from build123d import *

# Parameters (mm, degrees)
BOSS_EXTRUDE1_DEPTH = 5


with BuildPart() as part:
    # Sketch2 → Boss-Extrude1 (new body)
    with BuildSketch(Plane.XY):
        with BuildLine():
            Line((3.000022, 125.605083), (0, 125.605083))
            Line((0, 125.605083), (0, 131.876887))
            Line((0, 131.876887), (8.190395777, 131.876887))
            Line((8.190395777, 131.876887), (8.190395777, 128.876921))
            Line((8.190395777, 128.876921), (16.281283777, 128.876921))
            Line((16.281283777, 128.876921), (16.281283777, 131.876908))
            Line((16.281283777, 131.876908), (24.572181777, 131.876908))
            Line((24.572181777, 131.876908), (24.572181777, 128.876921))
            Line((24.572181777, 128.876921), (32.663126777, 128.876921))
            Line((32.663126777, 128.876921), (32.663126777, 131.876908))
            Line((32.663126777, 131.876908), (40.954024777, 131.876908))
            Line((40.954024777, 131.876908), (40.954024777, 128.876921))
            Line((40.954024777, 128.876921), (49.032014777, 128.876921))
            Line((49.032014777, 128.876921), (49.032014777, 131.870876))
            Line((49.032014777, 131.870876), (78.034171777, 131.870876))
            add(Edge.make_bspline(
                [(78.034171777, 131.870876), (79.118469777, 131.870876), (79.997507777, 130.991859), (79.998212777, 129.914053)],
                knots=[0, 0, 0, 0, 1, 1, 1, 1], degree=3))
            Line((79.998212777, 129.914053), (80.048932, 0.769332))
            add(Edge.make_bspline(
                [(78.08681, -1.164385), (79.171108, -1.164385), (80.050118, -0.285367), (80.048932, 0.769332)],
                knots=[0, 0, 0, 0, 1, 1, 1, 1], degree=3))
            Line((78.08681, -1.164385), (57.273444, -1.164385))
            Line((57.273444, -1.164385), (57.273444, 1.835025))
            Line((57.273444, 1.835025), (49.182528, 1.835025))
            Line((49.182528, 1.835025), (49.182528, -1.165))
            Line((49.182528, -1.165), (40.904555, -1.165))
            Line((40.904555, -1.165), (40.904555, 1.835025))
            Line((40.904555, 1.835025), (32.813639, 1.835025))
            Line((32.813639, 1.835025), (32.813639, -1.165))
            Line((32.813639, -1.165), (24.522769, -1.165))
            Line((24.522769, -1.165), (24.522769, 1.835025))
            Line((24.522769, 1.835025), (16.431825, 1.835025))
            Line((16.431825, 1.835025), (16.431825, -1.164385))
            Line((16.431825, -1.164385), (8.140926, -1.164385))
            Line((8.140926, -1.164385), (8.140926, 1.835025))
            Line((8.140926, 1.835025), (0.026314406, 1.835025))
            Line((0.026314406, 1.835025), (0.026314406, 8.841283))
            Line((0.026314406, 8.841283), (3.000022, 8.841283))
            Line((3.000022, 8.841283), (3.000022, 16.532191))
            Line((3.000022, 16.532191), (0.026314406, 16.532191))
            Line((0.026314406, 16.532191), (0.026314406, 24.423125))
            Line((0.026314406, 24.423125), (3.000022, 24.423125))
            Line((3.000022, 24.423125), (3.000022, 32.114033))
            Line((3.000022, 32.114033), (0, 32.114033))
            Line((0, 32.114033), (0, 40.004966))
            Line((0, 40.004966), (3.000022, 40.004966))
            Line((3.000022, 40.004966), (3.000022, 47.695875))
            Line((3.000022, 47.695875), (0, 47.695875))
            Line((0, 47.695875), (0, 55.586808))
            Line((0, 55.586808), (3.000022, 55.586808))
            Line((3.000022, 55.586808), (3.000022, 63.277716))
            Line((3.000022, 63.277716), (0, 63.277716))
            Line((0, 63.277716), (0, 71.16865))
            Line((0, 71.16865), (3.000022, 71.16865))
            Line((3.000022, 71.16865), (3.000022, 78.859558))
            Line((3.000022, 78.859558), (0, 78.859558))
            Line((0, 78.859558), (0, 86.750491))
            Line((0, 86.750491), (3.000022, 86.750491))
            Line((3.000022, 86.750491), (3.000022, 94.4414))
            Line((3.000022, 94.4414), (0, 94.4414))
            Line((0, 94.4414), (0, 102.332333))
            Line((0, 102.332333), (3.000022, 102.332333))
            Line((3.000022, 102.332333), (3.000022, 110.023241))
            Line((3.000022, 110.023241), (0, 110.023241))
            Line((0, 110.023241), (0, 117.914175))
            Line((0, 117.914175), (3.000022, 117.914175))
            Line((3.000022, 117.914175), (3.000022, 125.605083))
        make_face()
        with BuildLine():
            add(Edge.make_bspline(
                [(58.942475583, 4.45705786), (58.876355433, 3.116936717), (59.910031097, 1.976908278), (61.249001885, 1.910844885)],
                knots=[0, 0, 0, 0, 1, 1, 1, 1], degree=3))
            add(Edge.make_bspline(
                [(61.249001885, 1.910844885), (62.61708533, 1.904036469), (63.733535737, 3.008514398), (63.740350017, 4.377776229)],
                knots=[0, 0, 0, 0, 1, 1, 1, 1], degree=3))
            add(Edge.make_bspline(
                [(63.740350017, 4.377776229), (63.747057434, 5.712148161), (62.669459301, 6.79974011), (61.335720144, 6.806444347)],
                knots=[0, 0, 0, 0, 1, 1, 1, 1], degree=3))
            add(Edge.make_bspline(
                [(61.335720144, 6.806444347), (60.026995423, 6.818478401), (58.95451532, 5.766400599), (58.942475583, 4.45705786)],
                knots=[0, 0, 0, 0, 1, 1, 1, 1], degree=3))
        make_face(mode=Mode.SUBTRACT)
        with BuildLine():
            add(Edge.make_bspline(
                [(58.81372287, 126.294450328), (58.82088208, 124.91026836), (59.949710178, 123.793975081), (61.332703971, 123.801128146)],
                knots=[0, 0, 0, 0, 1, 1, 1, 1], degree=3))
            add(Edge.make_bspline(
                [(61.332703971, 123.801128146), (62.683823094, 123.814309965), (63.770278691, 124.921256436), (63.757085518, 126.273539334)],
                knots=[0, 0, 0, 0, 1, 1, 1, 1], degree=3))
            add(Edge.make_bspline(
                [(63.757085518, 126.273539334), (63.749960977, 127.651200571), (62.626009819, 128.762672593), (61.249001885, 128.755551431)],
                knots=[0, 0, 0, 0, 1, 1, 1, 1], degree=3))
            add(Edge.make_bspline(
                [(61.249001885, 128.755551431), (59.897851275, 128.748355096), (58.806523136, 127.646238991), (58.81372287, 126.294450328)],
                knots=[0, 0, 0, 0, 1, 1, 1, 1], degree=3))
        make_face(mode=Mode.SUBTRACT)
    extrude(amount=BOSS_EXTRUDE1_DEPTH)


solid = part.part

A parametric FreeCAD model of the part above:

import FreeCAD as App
import Part
import Sketcher
Q = App.Units.Quantity

doc = App.newDocument("Part")
body = doc.addObject("PartDesign::Body", "Body")

sketch1 = doc.addObject("Sketcher::SketchObject", "Sketch")
body.addObject(sketch1)
sketch1.AttachmentSupport = (doc.XY_Plane, [""])
sketch1.MapMode = "FlatFace"
sketch1.addGeometry([
    Part.LineSegment(App.Vector(0, 125.605083, 0), App.Vector(3.000022, 125.605083, 0)),
    Part.LineSegment(App.Vector(3.000022, 125.605083, 0), App.Vector(3.000022, 117.914175, 0)),
    Part.LineSegment(App.Vector(3.000022, 117.914175, 0), App.Vector(0, 117.914175, 0)),
    Part.LineSegment(App.Vector(0, 117.914175, 0), App.Vector(0, 110.023241, 0)),
    Part.LineSegment(App.Vector(0, 110.023241, 0), App.Vector(3.000022, 110.023241, 0)),
    Part.LineSegment(App.Vector(3.000022, 110.023241, 0), App.Vector(3.000022, 102.332333, 0)),
    Part.LineSegment(App.Vector(3.000022, 102.332333, 0), App.Vector(0, 102.332333, 0)),
    Part.LineSegment(App.Vector(0, 102.332333, 0), App.Vector(0, 94.4414, 0)),
    Part.LineSegment(App.Vector(0, 94.4414, 0), App.Vector(3.000022, 94.4414, 0)),
    Part.LineSegment(App.Vector(3.000022, 94.4414, 0), App.Vector(3.000022, 86.750491, 0)),
    Part.LineSegment(App.Vector(3.000022, 86.750491, 0), App.Vector(0, 86.750491, 0)),
    Part.LineSegment(App.Vector(0, 86.750491, 0), App.Vector(0, 78.859558, 0)),
    Part.LineSegment(App.Vector(0, 78.859558, 0), App.Vector(3.000022, 78.859558, 0)),
    Part.LineSegment(App.Vector(3.000022, 78.859558, 0), App.Vector(3.000022, 71.16865, 0)),
    Part.LineSegment(App.Vector(3.000022, 71.16865, 0), App.Vector(0, 71.16865, 0)),
    Part.LineSegment(App.Vector(0, 71.16865, 0), App.Vector(0, 63.277716, 0)),
    Part.LineSegment(App.Vector(0, 63.277716, 0), App.Vector(3.000022, 63.277716, 0)),
    Part.LineSegment(App.Vector(3.000022, 63.277716, 0), App.Vector(3.000022, 55.586808, 0)),
    Part.LineSegment(App.Vector(3.000022, 55.586808, 0), App.Vector(0, 55.586808, 0)),
    Part.LineSegment(App.Vector(0, 55.586808, 0), App.Vector(0, 47.695875, 0)),
    Part.LineSegment(App.Vector(0, 47.695875, 0), App.Vector(3.000022, 47.695875, 0)),
    Part.LineSegment(App.Vector(3.000022, 47.695875, 0), App.Vector(3.000022, 40.004966, 0)),
    Part.LineSegment(App.Vector(3.000022, 40.004966, 0), App.Vector(0, 40.004966, 0)),
    Part.LineSegment(App.Vector(0, 40.004966, 0), App.Vector(0, 32.114033, 0)),
    Part.LineSegment(App.Vector(0, 32.114033, 0), App.Vector(3.000022, 32.114033, 0)),
    Part.LineSegment(App.Vector(3.000022, 32.114033, 0), App.Vector(3.000022, 24.423125, 0)),
    Part.LineSegment(App.Vector(3.000022, 24.423125, 0), App.Vector(0.026314, 24.423125, 0)),
    Part.LineSegment(App.Vector(0.026314, 24.423125, 0), App.Vector(0.026314, 16.532191, 0)),
    Part.LineSegment(App.Vector(0.026314, 16.532191, 0), App.Vector(3.000022, 16.532191, 0)),
    Part.LineSegment(App.Vector(3.000022, 16.532191, 0), App.Vector(3.000022, 8.841283, 0)),
    Part.LineSegment(App.Vector(3.000022, 8.841283, 0), App.Vector(0.026314, 8.841283, 0)),
    Part.LineSegment(App.Vector(0.026314, 8.841283, 0), App.Vector(0.026314, 1.835025, 0)),
    Part.LineSegment(App.Vector(0.026314, 1.835025, 0), App.Vector(8.140926, 1.835025, 0)),
    Part.LineSegment(App.Vector(8.140926, 1.835025, 0), App.Vector(8.140926, -1.164385, 0)),
    Part.LineSegment(App.Vector(8.140926, -1.164385, 0), App.Vector(16.431825, -1.164385, 0)),
    Part.LineSegment(App.Vector(16.431825, -1.164385, 0), App.Vector(16.431825, 1.835025, 0)),
    Part.LineSegment(App.Vector(16.431825, 1.835025, 0), App.Vector(24.522769, 1.835025, 0)),
    Part.LineSegment(App.Vector(24.522769, 1.835025, 0), App.Vector(24.522769, -1.165, 0)),
    Part.LineSegment(App.Vector(24.522769, -1.165, 0), App.Vector(32.813639, -1.165, 0)),
    Part.LineSegment(App.Vector(32.813639, -1.165, 0), App.Vector(32.813639, 1.835025, 0)),
    Part.LineSegment(App.Vector(32.813639, 1.835025, 0), App.Vector(40.904555, 1.835025, 0)),
    Part.LineSegment(App.Vector(40.904555, 1.835025, 0), App.Vector(40.904555, -1.165, 0)),
    Part.LineSegment(App.Vector(40.904555, -1.165, 0), App.Vector(49.182528, -1.165, 0)),
    Part.LineSegment(App.Vector(49.182528, -1.165, 0), App.Vector(49.182528, 1.835025, 0)),
    Part.LineSegment(App.Vector(49.182528, 1.835025, 0), App.Vector(57.273444, 1.835025, 0)),
    Part.LineSegment(App.Vector(57.273444, 1.835025, 0), App.Vector(57.273444, -1.164385, 0)),
    Part.LineSegment(App.Vector(57.273444, -1.164385, 0), App.Vector(78.08681, -1.164385, 0)),
    Part.BSplineCurve([App.Vector(78.08681, -1.164385, 0), App.Vector(79.171108, -1.164385, 0), App.Vector(80.050118, -0.285367, 0), App.Vector(80.048932, 0.769332, 0)], [4, 4], [0, 1], False, 3, [1, 1, 1, 1], False),
    Part.LineSegment(App.Vector(80.048932, 0.769332, 0), App.Vector(79.998213, 129.914053, 0)),
    Part.BSplineCurve([App.Vector(78.034172, 131.870876, 0), App.Vector(79.11847, 131.870876, 0), App.Vector(79.997508, 130.991859, 0), App.Vector(79.998213, 129.914053, 0)], [4, 4], [0, 1], False, 3, [1, 1, 1, 1], False),
    Part.LineSegment(App.Vector(78.034172, 131.870876, 0), App.Vector(49.032015, 131.870876, 0)),
    Part.LineSegment(App.Vector(49.032015, 131.870876, 0), App.Vector(49.032015, 128.876921, 0)),
    Part.LineSegment(App.Vector(49.032015, 128.876921, 0), App.Vector(40.954025, 128.876921, 0)),
    Part.LineSegment(App.Vector(40.954025, 128.876921, 0), App.Vector(40.954025, 131.876908, 0)),
    Part.LineSegment(App.Vector(40.954025, 131.876908, 0), App.Vector(32.663127, 131.876908, 0)),
    Part.LineSegment(App.Vector(32.663127, 131.876908, 0), App.Vector(32.663127, 128.876921, 0)),
    Part.LineSegment(App.Vector(32.663127, 128.876921, 0), App.Vector(24.572182, 128.876921, 0)),
    Part.LineSegment(App.Vector(24.572182, 128.876921, 0), App.Vector(24.572182, 131.876908, 0)),
    Part.LineSegment(App.Vector(24.572182, 131.876908, 0), App.Vector(16.281284, 131.876908, 0)),
    Part.LineSegment(App.Vector(16.281284, 131.876908, 0), App.Vector(16.281284, 128.876921, 0)),
    Part.LineSegment(App.Vector(16.281284, 128.876921, 0), App.Vector(8.190396, 128.876921, 0)),
    Part.LineSegment(App.Vector(8.190396, 128.876921, 0), App.Vector(8.190396, 131.876887, 0)),
    Part.LineSegment(App.Vector(8.190396, 131.876887, 0), App.Vector(0, 131.876887, 0)),
    Part.LineSegment(App.Vector(0, 131.876887, 0), App.Vector(0, 125.605083, 0)),
    Part.BSplineCurve([App.Vector(61.33572, 6.806444, 0), App.Vector(60.026995, 6.818478, 0), App.Vector(58.954515, 5.766401, 0), App.Vector(58.942476, 4.457058, 0)], [4, 4], [0, 1], False, 3, [1, 1, 1, 1], False),
    Part.BSplineCurve([App.Vector(63.74035, 4.377776, 0), App.Vector(63.747057, 5.712148, 0), App.Vector(62.669459, 6.79974, 0), App.Vector(61.33572, 6.806444, 0)], [4, 4], [0, 1], False, 3, [1, 1, 1, 1], False),
    Part.BSplineCurve([App.Vector(61.249002, 1.910845, 0), App.Vector(62.617085, 1.904036, 0), App.Vector(63.733536, 3.008514, 0), App.Vector(63.74035, 4.377776, 0)], [4, 4], [0, 1], False, 3, [1, 1, 1, 1], False),
    Part.BSplineCurve([App.Vector(58.942476, 4.457058, 0), App.Vector(58.876355, 3.116937, 0), App.Vector(59.910031, 1.976908, 0), App.Vector(61.249002, 1.910845, 0)], [4, 4], [0, 1], False, 3, [1, 1, 1, 1], False),
    Part.BSplineCurve([App.Vector(61.249002, 128.755551, 0), App.Vector(59.897851, 128.748355, 0), App.Vector(58.806523, 127.646239, 0), App.Vector(58.813723, 126.29445, 0)], [4, 4], [0, 1], False, 3, [1, 1, 1, 1], False),
    Part.BSplineCurve([App.Vector(63.757086, 126.273539, 0), App.Vector(63.749961, 127.651201, 0), App.Vector(62.62601, 128.762673, 0), App.Vector(61.249002, 128.755551, 0)], [4, 4], [0, 1], False, 3, [1, 1, 1, 1], False),
    Part.BSplineCurve([App.Vector(61.332704, 123.801128, 0), App.Vector(62.683823, 123.81431, 0), App.Vector(63.770279, 124.921256, 0), App.Vector(63.757086, 126.273539, 0)], [4, 4], [0, 1], False, 3, [1, 1, 1, 1], False),
    Part.BSplineCurve([App.Vector(58.813723, 126.29445, 0), App.Vector(58.820882, 124.910268, 0), App.Vector(59.94971, 123.793975, 0), App.Vector(61.332704, 123.801128, 0)], [4, 4], [0, 1], False, 3, [1, 1, 1, 1], False),
], False)
sketch1.addConstraint([
    Sketcher.Constraint("Block", 47),
    Sketcher.Constraint("Block", 49),
    Sketcher.Constraint("Block", 64),
    Sketcher.Constraint("Block", 65),
    Sketcher.Constraint("Block", 66),
    Sketcher.Constraint("Block", 67),
    Sketcher.Constraint("Block", 68),
    Sketcher.Constraint("Block", 69),
    Sketcher.Constraint("Block", 70),
    Sketcher.Constraint("Block", 71),
    Sketcher.Constraint("Coincident", 0, 2, 1, 1),
    Sketcher.Constraint("Coincident", 1, 2, 2, 1),
    Sketcher.Constraint("Coincident", 2, 2, 3, 1),
    Sketcher.Constraint("Coincident", 3, 2, 4, 1),
    Sketcher.Constraint("Coincident", 4, 2, 5, 1),
    Sketcher.Constraint("Coincident", 5, 2, 6, 1),
    Sketcher.Constraint("Coincident", 6, 2, 7, 1),
    Sketcher.Constraint("Coincident", 7, 2, 8, 1),
    Sketcher.Constraint("Coincident", 8, 2, 9, 1),
    Sketcher.Constraint("Coincident", 9, 2, 10, 1),
    Sketcher.Constraint("Coincident", 10, 2, 11, 1),
    Sketcher.Constraint("Coincident", 11, 2, 12, 1),
    Sketcher.Constraint("Coincident", 12, 2, 13, 1),
    Sketcher.Constraint("Coincident", 13, 2, 14, 1),
    Sketcher.Constraint("Coincident", 14, 2, 15, 1),
    Sketcher.Constraint("Coincident", 15, 2, 16, 1),
    Sketcher.Constraint("Coincident", 16, 2, 17, 1),
    Sketcher.Constraint("Coincident", 17, 2, 18, 1),
    Sketcher.Constraint("Coincident", 18, 2, 19, 1),
    Sketcher.Constraint("Coincident", 19, 2, 20, 1),
    Sketcher.Constraint("Coincident", 20, 2, 21, 1),
    Sketcher.Constraint("Coincident", 21, 2, 22, 1),
    Sketcher.Constraint("Coincident", 22, 2, 23, 1),
    Sketcher.Constraint("Coincident", 23, 2, 24, 1),
    Sketcher.Constraint("Coincident", 24, 2, 25, 1),
    Sketcher.Constraint("Coincident", 25, 2, 26, 1),
    Sketcher.Constraint("Coincident", 26, 2, 27, 1),
    Sketcher.Constraint("Coincident", 27, 2, 28, 1),
    Sketcher.Constraint("Coincident", 28, 2, 29, 1),
    Sketcher.Constraint("Coincident", 29, 2, 30, 1),
    Sketcher.Constraint("Coincident", 30, 2, 31, 1),
    Sketcher.Constraint("Coincident", 31, 2, 32, 1),
    Sketcher.Constraint("Coincident", 32, 2, 33, 1),
    Sketcher.Constraint("Coincident", 33, 2, 34, 1),
    Sketcher.Constraint("Coincident", 34, 2, 35, 1),
    Sketcher.Constraint("Coincident", 35, 2, 36, 1),
    Sketcher.Constraint("Coincident", 36, 2, 37, 1),
    Sketcher.Constraint("Coincident", 37, 2, 38, 1),
    Sketcher.Constraint("Coincident", 38, 2, 39, 1),
    Sketcher.Constraint("Coincident", 39, 2, 40, 1),
    Sketcher.Constraint("Coincident", 40, 2, 41, 1),
    Sketcher.Constraint("Coincident", 41, 2, 42, 1),
    Sketcher.Constraint("Coincident", 42, 2, 43, 1),
    Sketcher.Constraint("Coincident", 43, 2, 44, 1),
    Sketcher.Constraint("Coincident", 44, 2, 45, 1),
    Sketcher.Constraint("Coincident", 45, 2, 46, 1),
    Sketcher.Constraint("Coincident", 46, 2, 47, 1),
    Sketcher.Constraint("Coincident", 47, 2, 48, 1),
    Sketcher.Constraint("Coincident", 48, 2, 49, 2),
    Sketcher.Constraint("Coincident", 49, 1, 50, 1),
    Sketcher.Constraint("Coincident", 50, 2, 51, 1),
    Sketcher.Constraint("Coincident", 51, 2, 52, 1),
    Sketcher.Constraint("Coincident", 52, 2, 53, 1),
    Sketcher.Constraint("Coincident", 53, 2, 54, 1),
    Sketcher.Constraint("Coincident", 54, 2, 55, 1),
    Sketcher.Constraint("Coincident", 55, 2, 56, 1),
    Sketcher.Constraint("Coincident", 56, 2, 57, 1),
    Sketcher.Constraint("Coincident", 57, 2, 58, 1),
    Sketcher.Constraint("Coincident", 58, 2, 59, 1),
    Sketcher.Constraint("Coincident", 59, 2, 60, 1),
    Sketcher.Constraint("Coincident", 60, 2, 61, 1),
    Sketcher.Constraint("Coincident", 61, 2, 62, 1),
    Sketcher.Constraint("Coincident", 62, 2, 63, 1),
    Sketcher.Constraint("Coincident", 63, 2, 0, 1),
    Sketcher.Constraint("Horizontal", 0),
    Sketcher.Constraint("Vertical", 1),
    Sketcher.Constraint("Horizontal", 2),
    Sketcher.Constraint("Vertical", 3),
    Sketcher.Constraint("Horizontal", 4),
    Sketcher.Constraint("Vertical", 5),
    Sketcher.Constraint("Horizontal", 6),
    Sketcher.Constraint("Vertical", 7),
    Sketcher.Constraint("Horizontal", 8),
    Sketcher.Constraint("Vertical", 9),
    Sketcher.Constraint("Horizontal", 10),
    Sketcher.Constraint("Vertical", 11),
    Sketcher.Constraint("Horizontal", 12),
    Sketcher.Constraint("Vertical", 13),
    Sketcher.Constraint("Horizontal", 14),
    Sketcher.Constraint("Vertical", 15),
    Sketcher.Constraint("Horizontal", 16),
    Sketcher.Constraint("Vertical", 17),
    Sketcher.Constraint("Horizontal", 18),
    Sketcher.Constraint("Vertical", 19),
    Sketcher.Constraint("Horizontal", 20),
    Sketcher.Constraint("Vertical", 21),
    Sketcher.Constraint("Horizontal", 22),
    Sketcher.Constraint("Vertical", 23),
    Sketcher.Constraint("Horizontal", 24),
    Sketcher.Constraint("Vertical", 25),
    Sketcher.Constraint("Horizontal", 26),
    Sketcher.Constraint("Vertical", 27),
    Sketcher.Constraint("Horizontal", 28),
    Sketcher.Constraint("Vertical", 29),
    Sketcher.Constraint("Horizontal", 30),
    Sketcher.Constraint("Vertical", 31),
    Sketcher.Constraint("Horizontal", 32),
    Sketcher.Constraint("Vertical", 33),
    Sketcher.Constraint("Horizontal", 34),
    Sketcher.Constraint("Vertical", 35),
    Sketcher.Constraint("Horizontal", 36),
    Sketcher.Constraint("Vertical", 37),
    Sketcher.Constraint("Horizontal", 38),
    Sketcher.Constraint("Vertical", 39),
    Sketcher.Constraint("Horizontal", 40),
    Sketcher.Constraint("Vertical", 41),
    Sketcher.Constraint("Horizontal", 42),
    Sketcher.Constraint("Vertical", 43),
    Sketcher.Constraint("Horizontal", 44),
    Sketcher.Constraint("Vertical", 45),
    Sketcher.Constraint("Horizontal", 46),
    Sketcher.Constraint("Horizontal", 50),
    Sketcher.Constraint("Vertical", 51),
    Sketcher.Constraint("Horizontal", 52),
    Sketcher.Constraint("Vertical", 53),
    Sketcher.Constraint("Horizontal", 54),
    Sketcher.Constraint("Vertical", 55),
    Sketcher.Constraint("Horizontal", 56),
    Sketcher.Constraint("Vertical", 57),
    Sketcher.Constraint("Horizontal", 58),
    Sketcher.Constraint("Vertical", 59),
    Sketcher.Constraint("Horizontal", 60),
    Sketcher.Constraint("Vertical", 61),
    Sketcher.Constraint("Horizontal", 62),
    Sketcher.Constraint("Vertical", 63),
    Sketcher.Constraint("PointOnObject", 2, 2, -2),
    Sketcher.Constraint("PointOnObject", 6, 2, -2),
    Sketcher.Constraint("PointOnObject", 10, 2, -2),
    Sketcher.Constraint("PointOnObject", 14, 2, -2),
    Sketcher.Constraint("PointOnObject", 18, 2, -2),
    Sketcher.Constraint("PointOnObject", 22, 2, -2),
    Sketcher.Constraint("PointOnObject", 62, 2, -2),
    Sketcher.Constraint("Horizontal", 32, 2, 35, 2),
    Sketcher.Constraint("Horizontal", 36, 2, 39, 2),
    Sketcher.Constraint("Horizontal", 38, 2, 41, 2),
    Sketcher.Constraint("Horizontal", 40, 2, 43, 2),
    Sketcher.Constraint("Horizontal", 34, 2, 45, 2),
    Sketcher.Constraint("Horizontal", 52, 2, 55, 2),
    Sketcher.Constraint("Horizontal", 54, 2, 57, 2),
    Sketcher.Constraint("Horizontal", 56, 2, 59, 2),
    Sketcher.Constraint("Vertical", 1, 2, 4, 2),
    Sketcher.Constraint("Vertical", 5, 2, 8, 2),
    Sketcher.Constraint("Vertical", 9, 2, 12, 2),
    Sketcher.Constraint("Vertical", 13, 2, 16, 2),
    Sketcher.Constraint("Vertical", 17, 2, 20, 2),
    Sketcher.Constraint("Vertical", 21, 2, 24, 2),
    Sketcher.Constraint("Vertical", 25, 2, 28, 2),
    Sketcher.Constraint("Vertical", 27, 2, 30, 2),
    Sketcher.Constraint("Equal", 40, 44),
    Sketcher.Constraint("Equal", 34, 54),
    Sketcher.Constraint("Equal", 36, 56),
    Sketcher.Constraint("Equal", 54, 58),
    Sketcher.Constraint("Equal", 1, 5),
    Sketcher.Constraint("Equal", 3, 7),
    Sketcher.Constraint("Equal", 5, 9),
    Sketcher.Constraint("Equal", 7, 11),
    Sketcher.Constraint("Equal", 9, 13),
    Sketcher.Constraint("Equal", 11, 15),
    Sketcher.Constraint("Equal", 13, 17),
    Sketcher.Constraint("Equal", 15, 19),
    Sketcher.Constraint("Equal", 17, 21),
    Sketcher.Constraint("Equal", 19, 23),
    Sketcher.Constraint("Equal", 21, 25),
    Sketcher.Constraint("Equal", 23, 27),
    Sketcher.Constraint("Equal", 25, 29),
    Sketcher.Constraint("DistanceX", 34, 1, 34, 2, Q("8.290899 mm")),
    Sketcher.Constraint("DistanceY", 37, 2, -1, 1, Q("1.165 mm")),
    Sketcher.Constraint("DistanceX", 0, 1, 0, 2, Q("3.000022 mm")),
    Sketcher.Constraint("DistanceX", 32, 1, 32, 2, Q("8.114612 mm")),
    Sketcher.Constraint("DistanceX", 38, 1, 38, 2, Q("8.29087 mm")),
    Sketcher.Constraint("DistanceX", 52, 2, 52, 1, Q("8.07799 mm")),
    Sketcher.Constraint("DistanceY", 9, 2, 9, 1, Q("7.690909 mm")),
    Sketcher.Constraint("DistanceY", 31, 2, 31, 1, Q("7.006258 mm")),
    Sketcher.Constraint("DistanceY", 33, 2, 33, 1, Q("2.99941 mm")),
    Sketcher.Constraint("DistanceY", -1, 1, 7, 2, Q("94.4414 mm")),
    Sketcher.Constraint("DistanceX", 26, 2, 26, 1, Q("2.973708 mm")),
    Sketcher.Constraint("DistanceX", 36, 1, 36, 2, Q("8.090944 mm")),
    Sketcher.Constraint("DistanceX", 40, 1, 40, 2, Q("8.090916 mm")),
    Sketcher.Constraint("DistanceX", 42, 1, 42, 2, Q("8.277973 mm")),
    Sketcher.Constraint("DistanceX", 50, 2, 50, 1, Q("29.002157 mm")),
    Sketcher.Constraint("DistanceX", 60, 2, 60, 1, Q("8.090888 mm")),
    Sketcher.Constraint("DistanceY", 51, 2, 51, 1, Q("2.993955 mm")),
    Sketcher.Constraint("DistanceY", 53, 1, 53, 2, Q("2.999987 mm")),
    Sketcher.Constraint("DistanceY", 61, 1, 61, 2, Q("2.999966 mm")),
])
pad1 = doc.addObject("PartDesign::Pad", "Pad")
body.addObject(pad1)
pad1.Profile = sketch1
pad1.Length = 5

doc.recompute()
